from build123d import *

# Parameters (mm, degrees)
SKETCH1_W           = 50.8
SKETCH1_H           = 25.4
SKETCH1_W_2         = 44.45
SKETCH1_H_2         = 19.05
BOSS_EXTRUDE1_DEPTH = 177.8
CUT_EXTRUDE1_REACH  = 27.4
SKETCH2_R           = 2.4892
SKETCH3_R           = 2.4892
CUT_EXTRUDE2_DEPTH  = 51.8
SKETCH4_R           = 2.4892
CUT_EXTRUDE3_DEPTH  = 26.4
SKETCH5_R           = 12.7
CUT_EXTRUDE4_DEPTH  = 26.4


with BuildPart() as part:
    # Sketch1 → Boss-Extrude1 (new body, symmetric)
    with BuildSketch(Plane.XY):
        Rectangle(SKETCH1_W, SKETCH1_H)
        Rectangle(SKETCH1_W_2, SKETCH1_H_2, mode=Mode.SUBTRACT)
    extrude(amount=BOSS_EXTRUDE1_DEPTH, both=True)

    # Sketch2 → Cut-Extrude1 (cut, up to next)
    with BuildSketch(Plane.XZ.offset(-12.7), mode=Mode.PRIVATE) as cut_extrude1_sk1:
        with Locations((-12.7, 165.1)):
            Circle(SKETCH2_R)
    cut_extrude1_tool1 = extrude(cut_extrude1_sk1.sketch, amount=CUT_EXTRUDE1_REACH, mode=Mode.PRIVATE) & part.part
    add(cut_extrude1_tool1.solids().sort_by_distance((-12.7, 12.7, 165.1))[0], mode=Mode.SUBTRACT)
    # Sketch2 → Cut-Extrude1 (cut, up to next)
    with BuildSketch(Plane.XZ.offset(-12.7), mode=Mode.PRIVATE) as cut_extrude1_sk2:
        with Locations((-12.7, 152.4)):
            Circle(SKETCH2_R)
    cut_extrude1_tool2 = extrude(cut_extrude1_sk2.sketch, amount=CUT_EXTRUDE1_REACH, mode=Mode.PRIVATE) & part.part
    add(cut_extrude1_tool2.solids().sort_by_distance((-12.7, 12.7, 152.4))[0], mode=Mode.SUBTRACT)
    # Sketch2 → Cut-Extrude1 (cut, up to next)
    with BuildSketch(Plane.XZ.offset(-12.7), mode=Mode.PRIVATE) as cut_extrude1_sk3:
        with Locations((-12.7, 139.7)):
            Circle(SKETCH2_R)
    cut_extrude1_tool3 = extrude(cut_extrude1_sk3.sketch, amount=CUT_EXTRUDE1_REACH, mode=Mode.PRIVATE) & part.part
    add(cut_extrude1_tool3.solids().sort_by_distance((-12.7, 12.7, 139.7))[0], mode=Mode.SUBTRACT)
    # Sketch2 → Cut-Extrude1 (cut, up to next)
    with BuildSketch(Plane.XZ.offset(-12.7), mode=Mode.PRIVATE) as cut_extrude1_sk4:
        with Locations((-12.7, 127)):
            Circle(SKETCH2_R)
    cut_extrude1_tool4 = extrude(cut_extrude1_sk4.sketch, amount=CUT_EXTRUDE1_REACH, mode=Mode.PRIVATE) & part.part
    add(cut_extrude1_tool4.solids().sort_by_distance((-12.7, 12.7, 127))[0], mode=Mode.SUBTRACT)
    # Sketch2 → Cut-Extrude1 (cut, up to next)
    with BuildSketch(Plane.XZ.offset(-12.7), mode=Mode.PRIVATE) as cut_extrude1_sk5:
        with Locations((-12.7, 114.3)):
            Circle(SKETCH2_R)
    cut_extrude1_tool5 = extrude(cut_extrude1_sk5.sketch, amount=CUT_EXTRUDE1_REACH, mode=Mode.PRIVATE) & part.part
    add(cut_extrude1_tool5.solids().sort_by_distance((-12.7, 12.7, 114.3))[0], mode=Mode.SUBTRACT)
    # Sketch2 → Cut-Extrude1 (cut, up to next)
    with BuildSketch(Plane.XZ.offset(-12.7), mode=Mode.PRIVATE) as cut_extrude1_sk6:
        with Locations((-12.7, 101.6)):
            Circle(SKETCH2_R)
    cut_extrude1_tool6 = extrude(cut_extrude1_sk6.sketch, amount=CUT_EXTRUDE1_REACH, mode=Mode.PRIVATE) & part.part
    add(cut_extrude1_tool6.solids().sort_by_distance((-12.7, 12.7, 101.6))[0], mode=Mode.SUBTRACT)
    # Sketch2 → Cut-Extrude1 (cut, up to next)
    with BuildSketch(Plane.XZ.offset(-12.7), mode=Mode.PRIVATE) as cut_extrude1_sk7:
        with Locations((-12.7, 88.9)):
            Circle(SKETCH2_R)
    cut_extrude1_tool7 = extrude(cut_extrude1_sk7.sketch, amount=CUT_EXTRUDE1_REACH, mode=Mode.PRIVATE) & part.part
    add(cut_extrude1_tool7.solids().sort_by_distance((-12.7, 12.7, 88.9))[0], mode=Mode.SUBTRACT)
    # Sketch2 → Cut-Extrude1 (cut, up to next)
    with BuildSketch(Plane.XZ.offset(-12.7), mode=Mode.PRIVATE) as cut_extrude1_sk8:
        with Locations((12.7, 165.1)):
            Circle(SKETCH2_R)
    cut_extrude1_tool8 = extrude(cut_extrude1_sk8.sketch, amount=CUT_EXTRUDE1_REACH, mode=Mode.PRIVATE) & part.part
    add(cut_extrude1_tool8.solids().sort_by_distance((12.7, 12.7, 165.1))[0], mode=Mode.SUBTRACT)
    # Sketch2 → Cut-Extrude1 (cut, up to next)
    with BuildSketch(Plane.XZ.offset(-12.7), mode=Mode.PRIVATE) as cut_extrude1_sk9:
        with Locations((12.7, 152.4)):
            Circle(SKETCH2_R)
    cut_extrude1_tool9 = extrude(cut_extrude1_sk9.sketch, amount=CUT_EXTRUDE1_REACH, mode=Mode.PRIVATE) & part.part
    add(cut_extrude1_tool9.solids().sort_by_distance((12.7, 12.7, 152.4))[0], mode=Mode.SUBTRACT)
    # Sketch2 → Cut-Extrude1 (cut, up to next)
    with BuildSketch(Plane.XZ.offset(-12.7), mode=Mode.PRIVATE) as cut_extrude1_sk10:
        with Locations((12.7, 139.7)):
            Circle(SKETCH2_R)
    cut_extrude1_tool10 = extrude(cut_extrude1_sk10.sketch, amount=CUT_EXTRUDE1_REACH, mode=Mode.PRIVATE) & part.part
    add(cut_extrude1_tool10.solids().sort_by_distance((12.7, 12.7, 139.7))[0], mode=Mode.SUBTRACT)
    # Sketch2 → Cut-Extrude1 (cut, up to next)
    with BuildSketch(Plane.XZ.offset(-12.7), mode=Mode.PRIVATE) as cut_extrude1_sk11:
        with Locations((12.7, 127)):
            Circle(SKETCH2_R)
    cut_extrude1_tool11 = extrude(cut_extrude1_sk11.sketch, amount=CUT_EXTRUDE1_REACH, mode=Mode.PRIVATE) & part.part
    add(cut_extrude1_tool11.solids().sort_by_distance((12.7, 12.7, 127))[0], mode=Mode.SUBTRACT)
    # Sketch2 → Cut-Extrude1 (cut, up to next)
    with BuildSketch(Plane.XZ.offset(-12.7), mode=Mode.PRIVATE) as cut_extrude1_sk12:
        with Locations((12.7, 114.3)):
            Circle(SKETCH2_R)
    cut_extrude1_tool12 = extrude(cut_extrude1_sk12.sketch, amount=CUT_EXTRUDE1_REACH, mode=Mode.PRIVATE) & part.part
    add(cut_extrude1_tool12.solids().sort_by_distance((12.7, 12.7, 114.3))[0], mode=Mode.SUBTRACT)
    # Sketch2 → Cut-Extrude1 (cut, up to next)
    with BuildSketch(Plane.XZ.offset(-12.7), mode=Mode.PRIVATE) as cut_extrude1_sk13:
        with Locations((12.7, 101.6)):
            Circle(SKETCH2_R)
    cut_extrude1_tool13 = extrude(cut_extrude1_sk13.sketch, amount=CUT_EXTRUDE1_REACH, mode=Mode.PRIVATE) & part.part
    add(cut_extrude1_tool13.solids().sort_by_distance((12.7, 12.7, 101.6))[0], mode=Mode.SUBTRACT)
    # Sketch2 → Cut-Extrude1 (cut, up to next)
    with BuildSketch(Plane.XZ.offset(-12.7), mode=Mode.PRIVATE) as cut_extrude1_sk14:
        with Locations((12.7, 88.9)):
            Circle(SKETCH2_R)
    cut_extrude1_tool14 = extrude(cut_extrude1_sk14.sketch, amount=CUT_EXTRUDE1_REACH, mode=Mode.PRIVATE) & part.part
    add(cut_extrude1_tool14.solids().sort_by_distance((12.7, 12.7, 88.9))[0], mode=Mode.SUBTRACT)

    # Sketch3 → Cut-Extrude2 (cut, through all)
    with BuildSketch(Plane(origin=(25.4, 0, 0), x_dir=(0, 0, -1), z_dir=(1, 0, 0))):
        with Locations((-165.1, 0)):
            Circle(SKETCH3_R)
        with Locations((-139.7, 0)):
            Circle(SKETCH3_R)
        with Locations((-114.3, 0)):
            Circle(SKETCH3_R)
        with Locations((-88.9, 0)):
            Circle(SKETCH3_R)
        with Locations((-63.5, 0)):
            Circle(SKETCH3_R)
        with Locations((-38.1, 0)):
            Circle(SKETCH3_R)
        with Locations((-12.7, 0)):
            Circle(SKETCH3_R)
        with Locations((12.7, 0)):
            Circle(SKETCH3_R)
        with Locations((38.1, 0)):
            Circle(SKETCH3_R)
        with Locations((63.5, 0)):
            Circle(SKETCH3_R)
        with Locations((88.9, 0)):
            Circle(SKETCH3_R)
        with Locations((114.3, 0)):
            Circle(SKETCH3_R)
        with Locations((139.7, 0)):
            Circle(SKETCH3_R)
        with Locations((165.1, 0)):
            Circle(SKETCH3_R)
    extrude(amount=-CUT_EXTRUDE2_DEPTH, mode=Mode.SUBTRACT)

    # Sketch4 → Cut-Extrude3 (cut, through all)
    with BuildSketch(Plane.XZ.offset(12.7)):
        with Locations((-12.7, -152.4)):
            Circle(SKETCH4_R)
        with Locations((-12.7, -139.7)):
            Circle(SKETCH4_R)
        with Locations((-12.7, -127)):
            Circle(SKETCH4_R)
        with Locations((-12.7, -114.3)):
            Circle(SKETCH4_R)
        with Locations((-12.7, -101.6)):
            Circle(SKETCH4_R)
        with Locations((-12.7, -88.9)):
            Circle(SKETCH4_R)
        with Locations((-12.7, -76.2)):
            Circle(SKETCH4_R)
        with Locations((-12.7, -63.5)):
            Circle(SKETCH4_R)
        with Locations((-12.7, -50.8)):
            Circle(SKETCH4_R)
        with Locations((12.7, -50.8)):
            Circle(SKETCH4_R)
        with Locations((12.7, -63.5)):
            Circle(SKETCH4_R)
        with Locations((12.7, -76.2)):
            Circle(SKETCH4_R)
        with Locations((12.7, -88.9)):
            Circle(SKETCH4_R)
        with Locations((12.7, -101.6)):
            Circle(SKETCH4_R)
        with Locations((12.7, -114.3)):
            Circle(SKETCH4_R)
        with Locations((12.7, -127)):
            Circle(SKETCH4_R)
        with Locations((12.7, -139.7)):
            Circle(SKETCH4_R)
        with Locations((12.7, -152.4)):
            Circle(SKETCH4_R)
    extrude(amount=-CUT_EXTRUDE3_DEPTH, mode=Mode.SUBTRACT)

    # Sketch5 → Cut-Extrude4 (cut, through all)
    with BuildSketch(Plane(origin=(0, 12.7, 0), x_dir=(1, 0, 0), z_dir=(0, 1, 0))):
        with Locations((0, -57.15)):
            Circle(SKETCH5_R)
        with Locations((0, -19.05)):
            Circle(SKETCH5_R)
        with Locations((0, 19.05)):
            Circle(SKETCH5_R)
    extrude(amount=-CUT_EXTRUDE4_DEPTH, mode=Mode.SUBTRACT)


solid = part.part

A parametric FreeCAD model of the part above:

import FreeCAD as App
import Part
import Sketcher
Q = App.Units.Quantity

doc = App.newDocument("Part")
body = doc.addObject("PartDesign::Body", "Body")

sketch1 = body.newObject("Sketcher::SketchObject", "Sketch")
sketch1.AttachmentSupport = (doc.getObject("XY_Plane"), [""])
sketch1.MapMode = "FlatFace"
sketch1.addGeometry([
    Part.LineSegment(App.Vector(-25, 13, 0), App.Vector(-25, -13, 0)),
    Part.LineSegment(App.Vector(-25, -13, 0), App.Vector(25, -13, 0)),
    Part.LineSegment(App.Vector(25, -13, 0), App.Vector(25, 13, 0)),
    Part.LineSegment(App.Vector(25, 13, 0), App.Vector(-25, 13, 0)),
    Part.LineSegment(App.Vector(22, -10, 0), App.Vector(-22, -10, 0)),
    Part.LineSegment(App.Vector(-22, -10, 0), App.Vector(-22, 10, 0)),
    Part.LineSegment(App.Vector(-22, 10, 0), App.Vector(22, 10, 0)),
    Part.LineSegment(App.Vector(22, 10, 0), App.Vector(22, -10, 0)),
], False)
sketch1.addConstraint([
    Sketcher.Constraint("Coincident", 0, 2, 1, 1),
    Sketcher.Constraint("Coincident", 1, 2, 2, 1),
    Sketcher.Constraint("Coincident", 2, 2, 3, 1),
    Sketcher.Constraint("Coincident", 3, 2, 0, 1),
    Sketcher.Constraint("Coincident", 4, 2, 5, 1),
    Sketcher.Constraint("Coincident", 5, 2, 6, 1),
    Sketcher.Constraint("Coincident", 6, 2, 7, 1),
    Sketcher.Constraint("Coincident", 7, 2, 4, 1),
    Sketcher.Constraint("Vertical", 0),
    Sketcher.Constraint("Horizontal", 1),
    Sketcher.Constraint("Vertical", 2),
    Sketcher.Constraint("Horizontal", 3),
    Sketcher.Constraint("Horizontal", 4),
    Sketcher.Constraint("Vertical", 5),
    Sketcher.Constraint("Horizontal", 6),
    Sketcher.Constraint("Vertical", 7),
    Sketcher.Constraint("Symmetric", 0, 2, 2, 2, -1, 1),
    Sketcher.Constraint("Symmetric", 4, 2, 6, 2, -1, 1),
    Sketcher.Constraint("DistanceX", 1, 1, 1, 2, Q("2 in")),
    Sketcher.Constraint("DistanceY", 0, 2, 0, 1, Q("1 in")),
    Sketcher.Constraint("DistanceX", 4, 2, 4, 1, Q("1.75 in")),
    Sketcher.Constraint("DistanceY", 5, 1, 5, 2, Q("0.75 in")),
])
pad1 = body.newObject("PartDesign::Pad", "Pad")
pad1.Profile = sketch1
pad1.Length = Q("14 in")
pad1.Midplane = True

sketch2 = body.newObject("Sketcher::SketchObject", "Sketch001")
sketch2.AttachmentSupport = (doc.getObject("XZ_Plane"), [""])
sketch2.MapMode = "FlatFace"
sketch2.AttachmentOffset = App.Placement(App.Vector(0, 0, -0.5 * 25.4), App.Rotation())
sketch2.addGeometry(Part.Circle(App.Vector(-12.7, 165.1, 0), App.Vector(0, 0, 1), 2.5), False)
sketch2.addConstraint([
    Sketcher.Constraint("Diameter", 0, Q("0.196 in")),
    Sketcher.Constraint("DistanceX", 0, 3, -1, 1, Q("0.5 in")),
    Sketcher.Constraint("DistanceY", -1, 1, 0, 3, Q("6.5 in")),
])
pocket1 = body.newObject("PartDesign::Pocket", "Pocket")
pocket1.Profile = sketch2
pocket1.Type = "UpToFirst"
pocket1.Reversed = True

sketch3 = body.newObject("Sketcher::SketchObject", "Sketch002")
sketch3.AttachmentSupport = (doc.getObject("XZ_Plane"), [""])
sketch3.MapMode = "FlatFace"
sketch3.AttachmentOffset = App.Placement(App.Vector(0, 0, -0.5 * 25.4), App.Rotation())
sketch3.addGeometry(Part.Circle(App.Vector(-12.7, 152.4, 0), App.Vector(0, 0, 1), 2.5), False)
sketch3.addConstraint([
    Sketcher.Constraint("Diameter", 0, Q("0.196 in")),
    Sketcher.Constraint("DistanceY", -1, 1, 0, 3, Q("6 in")),
    Sketcher.Constraint("DistanceX", 0, 3, -1, 1, Q("0.5 in")),
])
pocket2 = body.newObject("PartDesign::Pocket", "Pocket001")
pocket2.Profile = sketch3
pocket2.Type = "UpToFirst"
pocket2.Reversed = True

sketch4 = body.newObject("Sketcher::SketchObject", "Sketch003")
sketch4.AttachmentSupport = (doc.getObject("XZ_Plane"), [""])
sketch4.MapMode = "FlatFace"
sketch4.AttachmentOffset = App.Placement(App.Vector(0, 0, -0.5 * 25.4), App.Rotation())
sketch4.addGeometry(Part.Circle(App.Vector(-12.7, 139.7, 0), App.Vector(0, 0, 1), 2.5), False)
sketch4.addConstraint([
    Sketcher.Constraint("Diameter", 0, Q("0.196 in")),
    Sketcher.Constraint("DistanceX", 0, 3, -1, 1, Q("0.5 in")),
    Sketcher.Constraint("DistanceY", -1, 1, 0, 3, Q("5.5 in")),
])
pocket3 = body.newObject("PartDesign::Pocket", "Pocket002")
pocket3.Profile = sketch4
pocket3.Type = "UpToFirst"
pocket3.Reversed = True

sketch5 = body.newObject("Sketcher::SketchObject", "Sketch004")
sketch5.AttachmentSupport = (doc.getObject("XZ_Plane"), [""])
sketch5.MapMode = "FlatFace"
sketch5.AttachmentOffset = App.Placement(App.Vector(0, 0, -0.5 * 25.4), App.Rotation())
sketch5.addGeometry(Part.Circle(App.Vector(-12.7, 127, 0), App.Vector(0, 0, 1), 2.5), False)
sketch5.addConstraint([
    Sketcher.Constraint("Diameter", 0, Q("0.196 in")),
    Sketcher.Constraint("DistanceY", -1, 1, 0, 3, Q("5 in")),
    Sketcher.Constraint("DistanceX", 0, 3, -1, 1, Q("0.5 in")),
])
pocket4 = body.newObject("PartDesign::Pocket", "Pocket003")
pocket4.Profile = sketch5
pocket4.Type = "UpToFirst"
pocket4.Reversed = True

sketch6 = body.newObject("Sketcher::SketchObject", "Sketch005")
sketch6.AttachmentSupport = (doc.getObject("XZ_Plane"), [""])
sketch6.MapMode = "FlatFace"
sketch6.AttachmentOffset = App.Placement(App.Vector(0, 0, -0.5 * 25.4), App.Rotation())
sketch6.addGeometry(Part.Circle(App.Vector(-12.7, 114.3, 0), App.Vector(0, 0, 1), 2.5), False)
sketch6.addConstraint([
    Sketcher.Constraint("Diameter", 0, Q("0.196 in")),
    Sketcher.Constraint("DistanceX", 0, 3, -1, 1, Q("0.5 in")),
    Sketcher.Constraint("DistanceY", -1, 1, 0, 3, Q("4.5 in")),
])
pocket5 = body.newObject("PartDesign::Pocket", "Pocket004")
pocket5.Profile = sketch6
pocket5.Type = "UpToFirst"
pocket5.Reversed = True

sketch7 = body.newObject("Sketcher::SketchObject", "Sketch006")
sketch7.AttachmentSupport = (doc.getObject("XZ_Plane"), [""])
sketch7.MapMode = "FlatFace"
sketch7.AttachmentOffset = App.Placement(App.Vector(0, 0, -0.5 * 25.4), App.Rotation())
sketch7.addGeometry(Part.Circle(App.Vector(-12.7, 101.6, 0), App.Vector(0, 0, 1), 2.5), False)
sketch7.addConstraint([
    Sketcher.Constraint("Diameter", 0, Q("0.196 in")),
    Sketcher.Constraint("DistanceY", -1, 1, 0, 3, Q("4 in")),
    Sketcher.Constraint("DistanceX", 0, 3, -1, 1, Q("0.5 in")),
])
pocket6 = body.newObject("PartDesign::Pocket", "Pocket005")
pocket6.Profile = sketch7
pocket6.Type = "UpToFirst"
pocket6.Reversed = True

sketch8 = body.newObject("Sketcher::SketchObject", "Sketch007")
sketch8.AttachmentSupport = (doc.getObject("XZ_Plane"), [""])
sketch8.MapMode = "FlatFace"
sketch8.AttachmentOffset = App.Placement(App.Vector(0, 0, -0.5 * 25.4), App.Rotation())
sketch8.addGeometry(Part.Circle(App.Vector(-12.7, 88.9, 0), App.Vector(0, 0, 1), 2.5), False)
sketch8.addConstraint([
    Sketcher.Constraint("Diameter", 0, Q("0.196 in")),
    Sketcher.Constraint("DistanceX", 0, 3, -1, 1, Q("0.5 in")),
    Sketcher.Constraint("DistanceY", -1, 1, 0, 3, Q("3.5 in")),
])
pocket7 = body.newObject("PartDesign::Pocket", "Pocket006")
pocket7.Profile = sketch8
pocket7.Type = "UpToFirst"
pocket7.Reversed = True

sketch9 = body.newObject("Sketcher::SketchObject", "Sketch008")
sketch9.AttachmentSupport = (doc.getObject("XZ_Plane"), [""])
sketch9.MapMode = "FlatFace"
sketch9.AttachmentOffset = App.Placement(App.Vector(0, 0, -0.5 * 25.4), App.Rotation())
sketch9.addGeometry(Part.Circle(App.Vector(12.7, 165.1, 0), App.Vector(0, 0, 1), 2.5), False)
sketch9.addConstraint([
    Sketcher.Constraint("Diameter", 0, Q("0.196 in")),
    Sketcher.Constraint("DistanceX", -1, 1, 0, 3, Q("0.5 in")),
    Sketcher.Constraint("DistanceY", -1, 1, 0, 3, Q("6.5 in")),
])
pocket8 = body.newObject("PartDesign::Pocket", "Pocket007")
pocket8.Profile = sketch9
pocket8.Type = "UpToFirst"
pocket8.Reversed = True

sketch10 = body.newObject("Sketcher::SketchObject", "Sketch009")
sketch10.AttachmentSupport = (doc.getObject("XZ_Plane"), [""])
sketch10.MapMode = "FlatFace"
sketch10.AttachmentOffset = App.Placement(App.Vector(0, 0, -0.5 * 25.4), App.Rotation())
sketch10.addGeometry(Part.Circle(App.Vector(12.7, 152.4, 0), App.Vector(0, 0, 1), 2.5), False)
sketch10.addConstraint([
    Sketcher.Constraint("Diameter", 0, Q("0.196 in")),
    Sketcher.Constraint("DistanceY", -1, 1, 0, 3, Q("6 in")),
    Sketcher.Constraint("DistanceX", -1, 1, 0, 3, Q("0.5 in")),
])
pocket9 = body.newObject("PartDesign::Pocket", "Pocket008")
pocket9.Profile = sketch10
pocket9.Type = "UpToFirst"
pocket9.Reversed = True

sketch11 = body.newObject("Sketcher::SketchObject", "Sketch010")
sketch11.AttachmentSupport = (doc.getObject("XZ_Plane"), [""])
sketch11.MapMode = "FlatFace"
sketch11.AttachmentOffset = App.Placement(App.Vector(0, 0, -0.5 * 25.4), App.Rotation())
sketch11.addGeometry(Part.Circle(App.Vector(12.7, 139.7, 0), App.Vector(0, 0, 1), 2.5), False)
sketch11.addConstraint([
    Sketcher.Constraint("Diameter", 0, Q("0.196 in")),
    Sketcher.Constraint("DistanceX", -1, 1, 0, 3, Q("0.5 in")),
    Sketcher.Constraint("DistanceY", -1, 1, 0, 3, Q("5.5 in")),
])
pocket10 = body.newObject("PartDesign::Pocket", "Pocket009")
pocket10.Profile = sketch11
pocket10.Type = "UpToFirst"
pocket10.Reversed = True

sketch12 = body.newObject("Sketcher::SketchObject", "Sketch011")
sketch12.AttachmentSupport = (doc.getObject("XZ_Plane"), [""])
sketch12.MapMode = "FlatFace"
sketch12.AttachmentOffset = App.Placement(App.Vector(0, 0, -0.5 * 25.4), App.Rotation())
sketch12.addGeometry(Part.Circle(App.Vector(12.7, 127, 0), App.Vector(0, 0, 1), 2.5), False)
sketch12.addConstraint([
    Sketcher.Constraint("Diameter", 0, Q("0.196 in")),
    Sketcher.Constraint("DistanceY", -1, 1, 0, 3, Q("5 in")),
    Sketcher.Constraint("DistanceX", -1, 1, 0, 3, Q("0.5 in")),
])
pocket11 = body.newObject("PartDesign::Pocket", "Pocket010")
pocket11.Profile = sketch12
pocket11.Type = "UpToFirst"
pocket11.Reversed = True

sketch13 = body.newObject("Sketcher::SketchObject", "Sketch012")
sketch13.AttachmentSupport = (doc.getObject("XZ_Plane"), [""])
sketch13.MapMode = "FlatFace"
sketch13.AttachmentOffset = App.Placement(App.Vector(0, 0, -0.5 * 25.4), App.Rotation())
sketch13.addGeometry(Part.Circle(App.Vector(12.7, 114.3, 0), App.Vector(0, 0, 1), 2.5), False)
sketch13.addConstraint([
    Sketcher.Constraint("Diameter", 0, Q("0.196 in")),
    Sketcher.Constraint("DistanceX", -1, 1, 0, 3, Q("0.5 in")),
    Sketcher.Constraint("DistanceY", -1, 1, 0, 3, Q("4.5 in")),
])
pocket12 = body.newObject("PartDesign::Pocket", "Pocket011")
pocket12.Profile = sketch13
pocket12.Type = "UpToFirst"
pocket12.Reversed = True

sketch14 = body.newObject("Sketcher::SketchObject", "Sketch013")
sketch14.AttachmentSupport = (doc.getObject("XZ_Plane"), [""])
sketch14.MapMode = "FlatFace"
sketch14.AttachmentOffset = App.Placement(App.Vector(0, 0, -0.5 * 25.4), App.Rotation())
sketch14.addGeometry(Part.Circle(App.Vector(12.7, 101.6, 0), App.Vector(0, 0, 1), 2.5), False)
sketch14.addConstraint([
    Sketcher.Constraint("Diameter", 0, Q("0.196 in")),
    Sketcher.Constraint("DistanceY", -1, 1, 0, 3, Q("4 in")),
    Sketcher.Constraint("DistanceX", -1, 1, 0, 3, Q("0.5 in")),
])
pocket13 = body.newObject("PartDesign::Pocket", "Pocket012")
pocket13.Profile = sketch14
pocket13.Type = "UpToFirst"
pocket13.Reversed = True

sketch15 = body.newObject("Sketcher::SketchObject", "Sketch014")
sketch15.AttachmentSupport = (doc.getObject("XZ_Plane"), [""])
sketch15.MapMode = "FlatFace"
sketch15.AttachmentOffset = App.Placement(App.Vector(0, 0, -0.5 * 25.4), App.Rotation())
sketch15.addGeometry(Part.Circle(App.Vector(12.7, 88.9, 0), App.Vector(0, 0, 1), 2.5), False)
sketch15.addConstraint([
    Sketcher.Constraint("Diameter", 0, Q("0.196 in")),
    Sketcher.Constraint("DistanceX", -1, 1, 0, 3, Q("0.5 in")),
    Sketcher.Constraint("DistanceY", -1, 1, 0, 3, Q("3.5 in")),
])
pocket14 = body.newObject("PartDesign::Pocket", "Pocket013")
pocket14.Profile = sketch15
pocket14.Type = "UpToFirst"
pocket14.Reversed = True

sketch16 = body.newObject("Sketcher::SketchObject", "Sketch015")
sketch16.AttachmentSupport = (doc.getObject("YZ_Plane"), [""])
sketch16.MapMode = "FlatFace"
sketch16.AttachmentOffset = App.Placement(App.Vector(0, 0, 1 * 25.4), App.Rotation())
sketch16.addGeometry([
    Part.Circle(App.Vector(0, 165.1, 0), App.Vector(0, 0, 1), 2.5),
    Part.Circle(App.Vector(0, 139.7, 0), App.Vector(0, 0, 1), 2.5),
    Part.Circle(App.Vector(0, 114.3, 0), App.Vector(0, 0, 1), 2.5),
    Part.Circle(App.Vector(0, 88.9, 0), App.Vector(0, 0, 1), 2.5),
    Part.Circle(App.Vector(0, 63.5, 0), App.Vector(0, 0, 1), 2.5),
    Part.Circle(App.Vector(0, 38.1, 0), App.Vector(0, 0, 1), 2.5),
    Part.Circle(App.Vector(0, 12.7, 0), App.Vector(0, 0, 1), 2.5),
    Part.Circle(App.Vector(0, -12.7, 0), App.Vector(0, 0, 1), 2.5),
    Part.Circle(App.Vector(0, -38.1, 0), App.Vector(0, 0, 1), 2.5),
    Part.Circle(App.Vector(0, -63.5, 0), App.Vector(0, 0, 1), 2.5),
    Part.Circle(App.Vector(0, -88.9, 0), App.Vector(0, 0, 1), 2.5),
    Part.Circle(App.Vector(0, -114.3, 0), App.Vector(0, 0, 1), 2.5),
    Part.Circle(App.Vector(0, -139.7, 0), App.Vector(0, 0, 1), 2.5),
    Part.Circle(App.Vector(0, -165.1, 0), App.Vector(0, 0, 1), 2.5),
], False)
sketch16.addConstraint([
    Sketcher.Constraint("Equal", 0, 1),
    Sketcher.Constraint("Equal", 1, 2),
    Sketcher.Constraint("Equal", 2, 3),
    Sketcher.Constraint("Equal", 3, 4),
    Sketcher.Constraint("Equal", 4, 5),
    Sketcher.Constraint("Equal", 5, 6),
    Sketcher.Constraint("Equal", 6, 7),
    Sketcher.Constraint("Equal", 7, 8),
    Sketcher.Constraint("Equal", 8, 9),
    Sketcher.Constraint("Equal", 9, 10),
    Sketcher.Constraint("Equal", 10, 11),
    Sketcher.Constraint("Equal", 11, 12),
    Sketcher.Constraint("Equal", 12, 13),
    Sketcher.Constraint("Symmetric", 6, 3, 7, 3, -1, 1),
    Sketcher.Constraint("Symmetric", 5, 3, 8, 3, -1, 1),
    Sketcher.Constraint("Symmetric", 4, 3, 9, 3, -1, 1),
    Sketcher.Constraint("Symmetric", 3, 3, 10, 3, -1, 1),
    Sketcher.Constraint("Symmetric", 2, 3, 11, 3, -1, 1),
    Sketcher.Constraint("Symmetric", 1, 3, 12, 3, -1, 1),
    Sketcher.Constraint("Symmetric", 0, 3, 13, 3, -1, 1),
    Sketcher.Constraint("PointOnObject", 0, 3, -2),
    Sketcher.Constraint("PointOnObject", 1, 3, -2),
    Sketcher.Constraint("PointOnObject", 2, 3, -2),
    Sketcher.Constraint("PointOnObject", 3, 3, -2),
    Sketcher.Constraint("PointOnObject", 4, 3, -2),
    Sketcher.Constraint("PointOnObject", 5, 3, -2),
    Sketcher.Constraint("PointOnObject", 6, 3, -2),
    Sketcher.Constraint("Diameter", 0, Q("0.196 in")),
    Sketcher.Constraint("DistanceY", 1, 3, 0, 3, Q("1 in")),
    Sketcher.Constraint("DistanceY", 2, 3, 1, 3, Q("1 in")),
    Sketcher.Constraint("DistanceY", 3, 3, 2, 3, Q("1 in")),
    Sketcher.Constraint("DistanceY", 4, 3, 3, 3, Q("1 in")),
    Sketcher.Constraint("DistanceY", 5, 3, 4, 3, Q("1 in")),
    Sketcher.Constraint("DistanceY", 6, 3, 5, 3, Q("1 in")),
    Sketcher.Constraint("DistanceY", 7, 3, 6, 3, Q("1 in")),
])
pocket15 = body.newObject("PartDesign::Pocket", "Pocket014")
pocket15.Profile = sketch16
pocket15.Type = "ThroughAll"

sketch17 = body.newObject("Sketcher::SketchObject", "Sketch016")
sketch17.AttachmentSupport = (doc.getObject("XZ_Plane"), [""])
sketch17.MapMode = "FlatFace"
sketch17.AttachmentOffset = App.Placement(App.Vector(0, 0, 0.5 * 25.4), App.Rotation())
sketch17.addGeometry([
    Part.Circle(App.Vector(-12.7, -152.4, 0), App.Vector(0, 0, 1), 2.5),
    Part.Circle(App.Vector(-12.7, -139.7, 0), App.Vector(0, 0, 1), 2.5),
    Part.Circle(App.Vector(-12.7, -127, 0), App.Vector(0, 0, 1), 2.5),
    Part.Circle(App.Vector(-12.7, -114.3, 0), App.Vector(0, 0, 1), 2.5),
    Part.Circle(App.Vector(-12.7, -101.6, 0), App.Vector(0, 0, 1), 2.5),
    Part.Circle(App.Vector(-12.7, -88.9, 0), App.Vector(0, 0, 1), 2.5),
    Part.Circle(App.Vector(-12.7, -76.2, 0), App.Vector(0, 0, 1), 2.5),
    Part.Circle(App.Vector(-12.7, -63.5, 0), App.Vector(0, 0, 1), 2.5),
    Part.Circle(App.Vector(-12.7, -50.8, 0), App.Vector(0, 0, 1), 2.5),
    Part.Circle(App.Vector(12.7, -50.8, 0), App.Vector(0, 0, 1), 2.5),
    Part.Circle(App.Vector(12.7, -63.5, 0), App.Vector(0, 0, 1), 2.5),
    Part.Circle(App.Vector(12.7, -76.2, 0), App.Vector(0, 0, 1), 2.5),
    Part.Circle(App.Vector(12.7, -88.9, 0), App.Vector(0, 0, 1), 2.5),
    Part.Circle(App.Vector(12.7, -101.6, 0), App.Vector(0, 0, 1), 2.5),
    Part.Circle(App.Vector(12.7, -114.3, 0), App.Vector(0, 0, 1), 2.5),
    Part.Circle(App.Vector(12.7, -127, 0), App.Vector(0, 0, 1), 2.5),
    Part.Circle(App.Vector(12.7, -139.7, 0), App.Vector(0, 0, 1), 2.5),
    Part.Circle(App.Vector(12.7, -152.4, 0), App.Vector(0, 0, 1), 2.5),
], False)
sketch17.addConstraint([
    Sketcher.Constraint("Equal", 0, 1),
    Sketcher.Constraint("Equal", 1, 2),
    Sketcher.Constraint("Equal", 2, 3),
    Sketcher.Constraint("Equal", 3, 4),
    Sketcher.Constraint("Equal", 4, 5),
    Sketcher.Constraint("Equal", 5, 6),
    Sketcher.Constraint("Equal", 6, 7),
    Sketcher.Constraint("Equal", 7, 8),
    Sketcher.Constraint("Equal", 8, 9),
    Sketcher.Constraint("Equal", 9, 10),
    Sketcher.Constraint("Equal", 10, 11),
    Sketcher.Constraint("Equal", 11, 12),
    Sketcher.Constraint("Equal", 12, 13),
    Sketcher.Constraint("Equal", 13, 14),
    Sketcher.Constraint("Equal", 14, 15),
    Sketcher.Constraint("Equal", 15, 16),
    Sketcher.Constraint("Equal", 16, 17),
    Sketcher.Constraint("Symmetric", 8, 3, 9, 3, -2),
    Sketcher.Constraint("Symmetric", 7, 3, 10, 3, -2),
    Sketcher.Constraint("Symmetric", 6, 3, 11, 3, -2),
    Sketcher.Constraint("Symmetric", 5, 3, 12, 3, -2),
    Sketcher.Constraint("Symmetric", 4, 3, 13, 3, -2),
    Sketcher.Constraint("Symmetric", 3, 3, 14, 3, -2),
    Sketcher.Constraint("Symmetric", 2, 3, 15, 3, -2),
    Sketcher.Constraint("Symmetric", 1, 3, 16, 3, -2),
    Sketcher.Constraint("Symmetric", 0, 3, 17, 3, -2),
    Sketcher.Constraint("Vertical", 0, 3, 1, 3),
    Sketcher.Constraint("Vertical", 1, 3, 2, 3),
    Sketcher.Constraint("Vertical", 2, 3, 3, 3),
    Sketcher.Constraint("Vertical", 3, 3, 4, 3),
    Sketcher.Constraint("Vertical", 4, 3, 5, 3),
    Sketcher.Constraint("Vertical", 5, 3, 6, 3),
    Sketcher.Constraint("Vertical", 6, 3, 7, 3),
    Sketcher.Constraint("Vertical", 7, 3, 8, 3),
    Sketcher.Constraint("Diameter", 0, Q("0.196 in")),
    Sketcher.Constraint("DistanceY", 0, 3, -1, 1, Q("6 in")),
    Sketcher.Constraint("DistanceY", 2, 3, -1, 1, Q("5 in")),
    Sketcher.Constraint("DistanceY", 4, 3, -1, 1, Q("4 in")),
    Sketcher.Constraint("DistanceY", 6, 3, -1, 1, Q("3 in")),
    Sketcher.Constraint("DistanceY", 8, 3, -1, 1, Q("2 in")),
    Sketcher.Constraint("DistanceY", 1, 3, 3, 3, Q("1 in")),
    Sketcher.Constraint("DistanceY", 3, 3, 5, 3, Q("1 in")),
    Sketcher.Constraint("DistanceY", 5, 3, 7, 3, Q("1 in")),
    Sketcher.Constraint("DistanceX", 8, 3, 9, 3, Q("1 in")),
    Sketcher.Constraint("DistanceY", 1, 3, -1, 1, Q("5.5 in")),
])
pocket16 = body.newObject("PartDesign::Pocket", "Pocket015")
pocket16.Profile = sketch17
pocket16.Type = "ThroughAll"

sketch18 = body.newObject("Sketcher::SketchObject", "Sketch017")
sketch18.AttachmentSupport = (doc.getObject("XZ_Plane"), [""])
sketch18.MapMode = "FlatFace"
sketch18.AttachmentOffset = App.Placement(App.Vector(0, 0, -0.5 * 25.4), App.Rotation())
sketch18.addGeometry([
    Part.Circle(App.Vector(0, 57, 0), App.Vector(0, 0, 1), 13),
    Part.Circle(App.Vector(0, 19, 0), App.Vector(0, 0, 1), 13),
    Part.Circle(App.Vector(0, -19, 0), App.Vector(0, 0, 1), 13),
], False)
sketch18.addConstraint([
    Sketcher.Constraint("Equal", 0, 1),
    Sketcher.Constraint("Equal", 1, 2),
    Sketcher.Constraint("Symmetric", 1, 3, 2, 3, -1, 1),
    Sketcher.Constraint("PointOnObject", 0, 3, -2),
    Sketcher.Constraint("PointOnObject", 1, 3, -2),
    Sketcher.Constraint("Diameter", 0, Q("1 in")),
    Sketcher.Constraint("DistanceY", 2, 3, 0, 3, Q("3 in")),
    Sketcher.Constraint("DistanceY", 1, 3, 0, 3, Q("1.5 in")),
])
pocket17 = body.newObject("PartDesign::Pocket", "Pocket016")
pocket17.Profile = sketch18
pocket17.Type = "ThroughAll"
pocket17.Reversed = True

doc.recompute()
